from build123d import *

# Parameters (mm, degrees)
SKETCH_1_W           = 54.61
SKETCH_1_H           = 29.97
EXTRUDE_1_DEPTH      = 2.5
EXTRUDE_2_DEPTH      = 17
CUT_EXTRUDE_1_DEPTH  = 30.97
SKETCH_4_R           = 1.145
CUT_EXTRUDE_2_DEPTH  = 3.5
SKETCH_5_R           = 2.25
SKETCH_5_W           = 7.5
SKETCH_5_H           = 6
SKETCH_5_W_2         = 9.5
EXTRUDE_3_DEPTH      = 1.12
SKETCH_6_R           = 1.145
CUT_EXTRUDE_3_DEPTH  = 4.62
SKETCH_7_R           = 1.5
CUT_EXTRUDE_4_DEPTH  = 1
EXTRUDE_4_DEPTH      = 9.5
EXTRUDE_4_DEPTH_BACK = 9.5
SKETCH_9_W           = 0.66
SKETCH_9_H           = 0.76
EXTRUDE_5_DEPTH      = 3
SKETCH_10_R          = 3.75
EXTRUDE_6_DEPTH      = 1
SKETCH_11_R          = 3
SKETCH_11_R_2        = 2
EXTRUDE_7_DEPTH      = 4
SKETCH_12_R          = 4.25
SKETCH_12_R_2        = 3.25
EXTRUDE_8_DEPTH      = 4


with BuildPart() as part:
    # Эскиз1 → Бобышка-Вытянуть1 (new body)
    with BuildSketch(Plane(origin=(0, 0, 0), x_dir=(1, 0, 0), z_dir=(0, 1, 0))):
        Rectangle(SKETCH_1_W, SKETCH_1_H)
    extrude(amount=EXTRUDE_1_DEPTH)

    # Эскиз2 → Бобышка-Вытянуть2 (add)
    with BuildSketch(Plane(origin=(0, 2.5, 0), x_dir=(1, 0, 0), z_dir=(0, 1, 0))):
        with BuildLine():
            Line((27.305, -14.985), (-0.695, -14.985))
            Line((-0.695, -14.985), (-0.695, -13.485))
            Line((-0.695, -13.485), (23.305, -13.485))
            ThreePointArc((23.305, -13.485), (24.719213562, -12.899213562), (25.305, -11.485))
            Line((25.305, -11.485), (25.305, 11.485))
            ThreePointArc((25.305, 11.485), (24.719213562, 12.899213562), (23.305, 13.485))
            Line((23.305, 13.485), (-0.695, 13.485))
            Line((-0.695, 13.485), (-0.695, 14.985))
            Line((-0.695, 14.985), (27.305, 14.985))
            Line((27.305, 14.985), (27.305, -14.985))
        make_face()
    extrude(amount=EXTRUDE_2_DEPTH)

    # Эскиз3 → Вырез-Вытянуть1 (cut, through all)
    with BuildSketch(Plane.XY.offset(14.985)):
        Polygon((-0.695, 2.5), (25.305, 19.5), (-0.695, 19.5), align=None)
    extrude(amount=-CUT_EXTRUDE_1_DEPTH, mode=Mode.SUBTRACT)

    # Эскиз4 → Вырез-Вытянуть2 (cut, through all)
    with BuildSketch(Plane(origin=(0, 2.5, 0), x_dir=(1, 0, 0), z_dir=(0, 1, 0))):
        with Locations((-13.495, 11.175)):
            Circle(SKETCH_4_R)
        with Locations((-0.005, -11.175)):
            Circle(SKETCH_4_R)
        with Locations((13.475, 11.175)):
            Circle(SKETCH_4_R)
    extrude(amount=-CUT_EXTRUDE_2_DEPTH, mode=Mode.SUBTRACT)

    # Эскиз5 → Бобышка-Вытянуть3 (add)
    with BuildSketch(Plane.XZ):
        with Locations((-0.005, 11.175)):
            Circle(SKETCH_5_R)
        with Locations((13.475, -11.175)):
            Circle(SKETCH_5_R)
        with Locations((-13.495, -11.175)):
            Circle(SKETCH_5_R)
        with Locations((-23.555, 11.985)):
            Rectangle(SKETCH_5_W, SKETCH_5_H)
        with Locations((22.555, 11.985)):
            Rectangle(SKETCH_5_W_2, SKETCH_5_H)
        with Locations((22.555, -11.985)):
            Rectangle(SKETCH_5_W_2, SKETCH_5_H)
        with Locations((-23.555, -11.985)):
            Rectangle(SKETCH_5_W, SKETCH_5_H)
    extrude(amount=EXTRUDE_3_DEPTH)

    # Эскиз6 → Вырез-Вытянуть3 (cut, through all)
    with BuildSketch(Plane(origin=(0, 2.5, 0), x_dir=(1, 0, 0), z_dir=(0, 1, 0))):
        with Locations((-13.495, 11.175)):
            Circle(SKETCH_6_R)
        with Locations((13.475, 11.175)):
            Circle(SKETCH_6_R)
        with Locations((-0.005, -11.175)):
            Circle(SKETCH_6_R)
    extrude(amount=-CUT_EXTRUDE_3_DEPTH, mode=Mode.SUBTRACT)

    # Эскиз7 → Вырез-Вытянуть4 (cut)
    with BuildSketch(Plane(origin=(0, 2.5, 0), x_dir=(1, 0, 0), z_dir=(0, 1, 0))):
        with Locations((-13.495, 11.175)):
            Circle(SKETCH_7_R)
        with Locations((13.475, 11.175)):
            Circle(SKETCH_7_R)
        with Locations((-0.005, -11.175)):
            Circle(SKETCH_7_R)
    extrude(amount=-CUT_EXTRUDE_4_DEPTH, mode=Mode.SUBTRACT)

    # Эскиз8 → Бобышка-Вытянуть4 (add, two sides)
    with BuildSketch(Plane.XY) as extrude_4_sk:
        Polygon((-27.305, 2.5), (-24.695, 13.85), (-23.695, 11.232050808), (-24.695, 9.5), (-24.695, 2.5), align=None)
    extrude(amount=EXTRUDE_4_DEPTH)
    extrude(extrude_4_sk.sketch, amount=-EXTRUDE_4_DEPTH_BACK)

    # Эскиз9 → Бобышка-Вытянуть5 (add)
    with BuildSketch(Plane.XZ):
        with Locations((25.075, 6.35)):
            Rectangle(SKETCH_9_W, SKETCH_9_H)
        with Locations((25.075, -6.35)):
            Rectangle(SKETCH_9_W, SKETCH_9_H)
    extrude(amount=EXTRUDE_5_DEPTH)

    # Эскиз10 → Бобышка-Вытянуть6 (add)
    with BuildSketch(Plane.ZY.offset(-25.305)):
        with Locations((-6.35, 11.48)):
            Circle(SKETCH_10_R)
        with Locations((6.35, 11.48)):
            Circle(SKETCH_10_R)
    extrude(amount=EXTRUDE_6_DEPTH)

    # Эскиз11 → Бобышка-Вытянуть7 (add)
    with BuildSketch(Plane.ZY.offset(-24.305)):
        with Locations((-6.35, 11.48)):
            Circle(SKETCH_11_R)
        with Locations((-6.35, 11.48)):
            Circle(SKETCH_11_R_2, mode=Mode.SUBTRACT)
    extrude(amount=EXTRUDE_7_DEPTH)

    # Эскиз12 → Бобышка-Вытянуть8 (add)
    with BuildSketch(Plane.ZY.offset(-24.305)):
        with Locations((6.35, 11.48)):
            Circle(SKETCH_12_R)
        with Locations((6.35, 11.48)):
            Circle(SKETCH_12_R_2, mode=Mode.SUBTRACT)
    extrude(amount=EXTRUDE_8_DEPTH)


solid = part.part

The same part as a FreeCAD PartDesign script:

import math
import FreeCAD as App
import Part
import Sketcher
Q = App.Units.Quantity

doc = App.newDocument("Part")
body = doc.addObject("PartDesign::Body", "Body")

# Sketch on XZ plane
sketch1 = body.newObject("Sketcher::SketchObject", "Sketch")
sketch1.AttachmentSupport = (doc.getObject("XZ_Plane"), [""])
sketch1.MapMode = "FlatFace"
sketch1.addGeometry(Part.LineSegment(App.Vector(-27.305, -14.985, 0), App.Vector(-27.305, 14.985, 0)), False)
sketch1.addGeometry(Part.LineSegment(App.Vector(-27.305, 14.985, 0), App.Vector(27.305, 14.985, 0)), False)
sketch1.addGeometry(Part.LineSegment(App.Vector(27.305, 14.985, 0), App.Vector(27.305, -14.985, 0)), False)
sketch1.addGeometry(Part.LineSegment(App.Vector(27.305, -14.985, 0), App.Vector(-27.305, -14.985, 0)), False)
sketch1.addConstraint(Sketcher.Constraint("Coincident", 0, 2, 1, 1))
sketch1.addConstraint(Sketcher.Constraint("Coincident", 1, 2, 2, 1))
sketch1.addConstraint(Sketcher.Constraint("Coincident", 2, 2, 3, 1))
sketch1.addConstraint(Sketcher.Constraint("Coincident", 3, 2, 0, 1))
sketch1.addConstraint(Sketcher.Constraint("Vertical", 0))
sketch1.addConstraint(Sketcher.Constraint("Horizontal", 1))
sketch1.addConstraint(Sketcher.Constraint("Vertical", 2))
sketch1.addConstraint(Sketcher.Constraint("Horizontal", 3))
sketch1.addConstraint(Sketcher.Constraint("Symmetric", 0, 2, 2, 2, -1, 1))
sketch1.addConstraint(Sketcher.Constraint("DistanceX", 1, 1, 1, 2, Q("54.61 mm")))
sketch1.addConstraint(Sketcher.Constraint("DistanceY", 0, 1, 0, 2, Q("29.97 mm")))
pad1 = body.newObject("PartDesign::Pad", "Pad")
pad1.Profile = sketch1
pad1.Length = 2.5
pad1.Reversed = True

# Sketch on XZ plane
sketch2 = body.newObject("Sketcher::SketchObject", "Sketch001")
sketch2.AttachmentSupport = (doc.getObject("XZ_Plane"), [""])
sketch2.MapMode = "FlatFace"
sketch2.AttachmentOffset = App.Placement(App.Vector(0, 0, -2.5), App.Rotation())
sketch2.addGeometry(Part.LineSegment(App.Vector(-0.695, 14.985, 0), App.Vector(27.305, 14.985, 0)), False)
sketch2.addGeometry(Part.LineSegment(App.Vector(27.305, 14.985, 0), App.Vector(27.305, -14.985, 0)), False)
sketch2.addGeometry(Part.LineSegment(App.Vector(27.305, -14.985, 0), App.Vector(-0.695, -14.985, 0)), False)
sketch2.addGeometry(Part.LineSegment(App.Vector(-0.695, -14.985, 0), App.Vector(-0.695, -13.485, 0)), False)
sketch2.addGeometry(Part.LineSegment(App.Vector(-0.695, -13.485, 0), App.Vector(23.305, -13.485, 0)), False)
sketch2.addGeometry(Part.ArcOfCircle(Part.Circle(App.Vector(23.305, -11.485, 0), App.Vector(0, 0, 1), 2), math.radians(-90), math.radians(0)), False)
sketch2.addGeometry(Part.LineSegment(App.Vector(25.305, -11.485, 0), App.Vector(25.305, 11.485, 0)), False)
sketch2.addGeometry(Part.ArcOfCircle(Part.Circle(App.Vector(23.305, 11.485, 0), App.Vector(0, 0, 1), 2), math.radians(0), math.radians(90)), False)
sketch2.addGeometry(Part.LineSegment(App.Vector(23.305, 13.485, 0), App.Vector(-0.695, 13.485, 0)), False)
sketch2.addGeometry(Part.LineSegment(App.Vector(-0.695, 13.485, 0), App.Vector(-0.695, 14.985, 0)), False)
sketch2.addConstraint(Sketcher.Constraint("Coincident", 0, 2, 1, 1))
sketch2.addConstraint(Sketcher.Constraint("Coincident", 1, 2, 2, 1))
sketch2.addConstraint(Sketcher.Constraint("Coincident", 2, 2, 3, 1))
sketch2.addConstraint(Sketcher.Constraint("Coincident", 3, 2, 4, 1))
sketch2.addConstraint(Sketcher.Constraint("Tangent", 4, 2, 5, 1))
sketch2.addConstraint(Sketcher.Constraint("Tangent", 5, 2, 6, 1))
sketch2.addConstraint(Sketcher.Constraint("Tangent", 6, 2, 7, 1))
sketch2.addConstraint(Sketcher.Constraint("Tangent", 7, 2, 8, 1))
sketch2.addConstraint(Sketcher.Constraint("Coincident", 8, 2, 9, 1))
sketch2.addConstraint(Sketcher.Constraint("Coincident", 9, 2, 0, 1))
sketch2.addConstraint(Sketcher.Constraint("Horizontal", 0))
sketch2.addConstraint(Sketcher.Constraint("Vertical", 1))
sketch2.addConstraint(Sketcher.Constraint("Horizontal", 2))
sketch2.addConstraint(Sketcher.Constraint("Vertical", 3))
sketch2.addConstraint(Sketcher.Constraint("Horizontal", 4))
sketch2.addConstraint(Sketcher.Constraint("Vertical", 6))
sketch2.addConstraint(Sketcher.Constraint("Horizontal", 8))
sketch2.addConstraint(Sketcher.Constraint("Vertical", 9))
sketch2.addConstraint(Sketcher.Constraint("Equal", 5, 7))
sketch2.addConstraint(Sketcher.Constraint("Symmetric", 3, 2, 8, 2, -1))
sketch2.addConstraint(Sketcher.Constraint("Equal", 3, 9))
sketch2.addConstraint(Sketcher.Constraint("Radius", 5, Q("2 mm")))
sketch2.addConstraint(Sketcher.Constraint("DistanceX", 0, 1, 0, 2, Q("28 mm")))
sketch2.addConstraint(Sketcher.Constraint("DistanceX", 4, 1, 4, 2, Q("24 mm")))
sketch2.addConstraint(Sketcher.Constraint("DistanceY", 3, 1, 3, 2, Q("1.5 mm")))
sketch2.addConstraint(Sketcher.Constraint("DistanceY", 1, 2, 1, 1, Q("29.97 mm")))
sketch2.addConstraint(Sketcher.Constraint("DistanceX", -1, 1, 5, 3, Q("23.305 mm")))
pad2 = body.newObject("PartDesign::Pad", "Pad001")
pad2.Profile = sketch2
pad2.Length = 17
pad2.Reversed = True

# Sketch on XY plane
sketch3 = body.newObject("Sketcher::SketchObject", "Sketch002")
sketch3.AttachmentSupport = (doc.getObject("XY_Plane"), [""])
sketch3.MapMode = "FlatFace"
sketch3.AttachmentOffset = App.Placement(App.Vector(0, 0, 14.985), App.Rotation())
sketch3.addGeometry(Part.LineSegment(App.Vector(-0.695, 2.5, 0), App.Vector(25.305, 19.5, 0)), False)
sketch3.addGeometry(Part.LineSegment(App.Vector(25.305, 19.5, 0), App.Vector(-0.695, 19.5, 0)), False)
sketch3.addGeometry(Part.LineSegment(App.Vector(-0.695, 19.5, 0), App.Vector(-0.695, 2.5, 0)), False)
sketch3.addConstraint(Sketcher.Constraint("Coincident", 0, 2, 1, 1))
sketch3.addConstraint(Sketcher.Constraint("Coincident", 1, 2, 2, 1))
sketch3.addConstraint(Sketcher.Constraint("Coincident", 2, 2, 0, 1))
sketch3.addConstraint(Sketcher.Constraint("Horizontal", 1))
sketch3.addConstraint(Sketcher.Constraint("Vertical", 2))
sketch3.addConstraint(Sketcher.Constraint("DistanceX", 1, 2, 1, 1, Q("26 mm")))
sketch3.addConstraint(Sketcher.Constraint("DistanceY", 2, 2, 2, 1, Q("17 mm")))
sketch3.addConstraint(Sketcher.Constraint("DistanceY", -1, 1, 0, 2, Q("19.5 mm")))
sketch3.addConstraint(Sketcher.Constraint("DistanceX", -1, 1, 0, 2, Q("25.305 mm")))
pocket1 = body.newObject("PartDesign::Pocket", "Pocket")
pocket1.Profile = sketch3
pocket1.Type = "ThroughAll"

# Sketch on XZ plane
sketch4 = body.newObject("Sketcher::SketchObject", "Sketch003")
sketch4.AttachmentSupport = (doc.getObject("XZ_Plane"), [""])
sketch4.MapMode = "FlatFace"
sketch4.AttachmentOffset = App.Placement(App.Vector(0, 0, -2.5), App.Rotation())
sketch4.addGeometry(Part.Circle(App.Vector(-13.495, -11.175, 0), App.Vector(0, 0, 1), 1.145), False)
sketch4.addGeometry(Part.Circle(App.Vector(-0.005, 11.175, 0), App.Vector(0, 0, 1), 1.145), False)
sketch4.addGeometry(Part.Circle(App.Vector(13.475, -11.175, 0), App.Vector(0, 0, 1), 1.145), False)
sketch4.addConstraint(Sketcher.Constraint("Equal", 0, 1))
sketch4.addConstraint(Sketcher.Constraint("Equal", 1, 2))
sketch4.addConstraint(Sketcher.Constraint("Horizontal", 0, 3, 2, 3))
sketch4.addConstraint(Sketcher.Constraint("Diameter", 0, Q("2.29 mm")))
sketch4.addConstraint(Sketcher.Constraint("DistanceX", 0, 3, 1, 3, Q("13.49 mm")))
sketch4.addConstraint(Sketcher.Constraint("DistanceY", 0, 3, 1, 3, Q("22.35 mm")))
sketch4.addConstraint(Sketcher.Constraint("DistanceX", 1, 3, 2, 3, Q("13.48 mm")))
sketch4.addConstraint(Sketcher.Constraint("DistanceX", 0, 3, -1, 1, Q("13.495 mm")))
sketch4.addConstraint(Sketcher.Constraint("DistanceY", 0, 3, -1, 1, Q("11.175 mm")))
pocket2 = body.newObject("PartDesign::Pocket", "Pocket001")
pocket2.Profile = sketch4
pocket2.Type = "ThroughAll"
pocket2.Reversed = True

# Sketch on XZ plane
sketch5 = body.newObject("Sketcher::SketchObject", "Sketch004")
sketch5.AttachmentSupport = (doc.getObject("XZ_Plane"), [""])
sketch5.MapMode = "FlatFace"
sketch5.addGeometry(Part.Circle(App.Vector(-0.005, 11.175, 0), App.Vector(0, 0, 1), 2.25), False)
sketch5.addGeometry(Part.Circle(App.Vector(13.475, -11.175, 0), App.Vector(0, 0, 1), 2.25), False)
sketch5.addGeometry(Part.Circle(App.Vector(-13.495, -11.175, 0), App.Vector(0, 0, 1), 2.25), False)
sketch5.addGeometry(Part.LineSegment(App.Vector(-27.305, 14.985, 0), App.Vector(-27.305, 8.985, 0)), False)
sketch5.addGeometry(Part.LineSegment(App.Vector(-27.305, 8.985, 0), App.Vector(-19.805, 8.985, 0)), False)
sketch5.addGeometry(Part.LineSegment(App.Vector(-19.805, 8.985, 0), App.Vector(-19.805, 14.985, 0)), False)
sketch5.addGeometry(Part.LineSegment(App.Vector(-19.805, 14.985, 0), App.Vector(-27.305, 14.985, 0)), False)
sketch5.addGeometry(Part.LineSegment(App.Vector(17.805, 14.985, 0), App.Vector(17.805, 8.985, 0)), False)
sketch5.addGeometry(Part.LineSegment(App.Vector(17.805, 8.985, 0), App.Vector(27.305, 8.985, 0)), False)
sketch5.addGeometry(Part.LineSegment(App.Vector(27.305, 8.985, 0), App.Vector(27.305, 14.985, 0)), False)
sketch5.addGeometry(Part.LineSegment(App.Vector(27.305, 14.985, 0), App.Vector(17.805, 14.985, 0)), False)
sketch5.addGeometry(Part.LineSegment(App.Vector(17.805, -8.985, 0), App.Vector(17.805, -14.985, 0)), False)
sketch5.addGeometry(Part.LineSegment(App.Vector(17.805, -14.985, 0), App.Vector(27.305, -14.985, 0)), False)
sketch5.addGeometry(Part.LineSegment(App.Vector(27.305, -14.985, 0), App.Vector(27.305, -8.985, 0)), False)
sketch5.addGeometry(Part.LineSegment(App.Vector(27.305, -8.985, 0), App.Vector(17.805, -8.985, 0)), False)
sketch5.addGeometry(Part.LineSegment(App.Vector(-27.305, -8.985, 0), App.Vector(-27.305, -14.985, 0)), False)
sketch5.addGeometry(Part.LineSegment(App.Vector(-27.305, -14.985, 0), App.Vector(-19.805, -14.985, 0)), False)
sketch5.addGeometry(Part.LineSegment(App.Vector(-19.805, -14.985, 0), App.Vector(-19.805, -8.985, 0)), False)
sketch5.addGeometry(Part.LineSegment(App.Vector(-19.805, -8.985, 0), App.Vector(-27.305, -8.985, 0)), False)
sketch5.addConstraint(Sketcher.Constraint("Coincident", 3, 2, 4, 1))
sketch5.addConstraint(Sketcher.Constraint("Coincident", 4, 2, 5, 1))
sketch5.addConstraint(Sketcher.Constraint("Coincident", 5, 2, 6, 1))
sketch5.addConstraint(Sketcher.Constraint("Coincident", 6, 2, 3, 1))
sketch5.addConstraint(Sketcher.Constraint("Coincident", 7, 2, 8, 1))
sketch5.addConstraint(Sketcher.Constraint("Coincident", 8, 2, 9, 1))
sketch5.addConstraint(Sketcher.Constraint("Coincident", 9, 2, 10, 1))
sketch5.addConstraint(Sketcher.Constraint("Coincident", 10, 2, 7, 1))
sketch5.addConstraint(Sketcher.Constraint("Coincident", 11, 2, 12, 1))
sketch5.addConstraint(Sketcher.Constraint("Coincident", 12, 2, 13, 1))
sketch5.addConstraint(Sketcher.Constraint("Coincident", 13, 2, 14, 1))
sketch5.addConstraint(Sketcher.Constraint("Coincident", 14, 2, 11, 1))
sketch5.addConstraint(Sketcher.Constraint("Coincident", 15, 2, 16, 1))
sketch5.addConstraint(Sketcher.Constraint("Coincident", 16, 2, 17, 1))
sketch5.addConstraint(Sketcher.Constraint("Coincident", 17, 2, 18, 1))
sketch5.addConstraint(Sketcher.Constraint("Coincident", 18, 2, 15, 1))
sketch5.addConstraint(Sketcher.Constraint("Vertical", 3))
sketch5.addConstraint(Sketcher.Constraint("Horizontal", 4))
sketch5.addConstraint(Sketcher.Constraint("Vertical", 5))
sketch5.addConstraint(Sketcher.Constraint("Horizontal", 6))
sketch5.addConstraint(Sketcher.Constraint("Vertical", 7))
sketch5.addConstraint(Sketcher.Constraint("Horizontal", 8))
sketch5.addConstraint(Sketcher.Constraint("Vertical", 9))
sketch5.addConstraint(Sketcher.Constraint("Horizontal", 10))
sketch5.addConstraint(Sketcher.Constraint("Vertical", 11))
sketch5.addConstraint(Sketcher.Constraint("Horizontal", 12))
sketch5.addConstraint(Sketcher.Constraint("Vertical", 13))
sketch5.addConstraint(Sketcher.Constraint("Horizontal", 14))
sketch5.addConstraint(Sketcher.Constraint("Vertical", 15))
sketch5.addConstraint(Sketcher.Constraint("Horizontal", 16))
sketch5.addConstraint(Sketcher.Constraint("Vertical", 17))
sketch5.addConstraint(Sketcher.Constraint("Horizontal", 18))
sketch5.addConstraint(Sketcher.Constraint("Equal", 0, 1))
sketch5.addConstraint(Sketcher.Constraint("Equal", 1, 2))
sketch5.addConstraint(Sketcher.Constraint("Symmetric", 6, 2, 12, 2, -1, 1))
sketch5.addConstraint(Sketcher.Constraint("Symmetric", 9, 2, 15, 2, -1, 1))
sketch5.addConstraint(Sketcher.Constraint("Symmetric", 3, 2, 8, 2, -2))
sketch5.addConstraint(Sketcher.Constraint("Symmetric", 10, 2, 11, 2, -1))
sketch5.addConstraint(Sketcher.Constraint("Symmetric", 4, 2, 17, 2, -1))
sketch5.addConstraint(Sketcher.Constraint("Horizontal", 1, 3, 2, 3))
sketch5.addConstraint(Sketcher.Constraint("Horizontal", 14, 2, 17, 2))
sketch5.addConstraint(Sketcher.Constraint("Diameter", 0, Q("4.5 mm")))
sketch5.addConstraint(Sketcher.Constraint("DistanceY", 3, 2, 3, 1, Q("6 mm")))
sketch5.addConstraint(Sketcher.Constraint("DistanceX", 4, 1, 4, 2, Q("7.5 mm")))
sketch5.addConstraint(Sketcher.Constraint("DistanceX", 8, 1, 8, 2, Q("9.5 mm")))
sketch5.addConstraint(Sketcher.Constraint("DistanceX", 3, 2, 0, 3, Q("27.3 mm")))
sketch5.addConstraint(Sketcher.Constraint("DistanceX", 2, 3, 7, 2, Q("31.3 mm")))
sketch5.addConstraint(Sketcher.Constraint("DistanceX", 0, 3, 1, 3, Q("13.48 mm")))
sketch5.addConstraint(Sketcher.Constraint("DistanceY", 1, 3, 0, 3, Q("22.35 mm")))
sketch5.addConstraint(Sketcher.Constraint("DistanceX", 2, 3, 0, 3, Q("13.49 mm")))
sketch5.addConstraint(Sketcher.Constraint("DistanceY", 2, 3, 3, 2, Q("20.16 mm")))
sketch5.addConstraint(Sketcher.Constraint("DistanceY", 11, 2, 1, 3, Q("3.81 mm")))
pad3 = body.newObject("PartDesign::Pad", "Pad002")
pad3.Profile = sketch5
pad3.Length = 1.12

# Sketch on XZ plane
sketch6 = body.newObject("Sketcher::SketchObject", "Sketch005")
sketch6.AttachmentSupport = (doc.getObject("XZ_Plane"), [""])
sketch6.MapMode = "FlatFace"
sketch6.AttachmentOffset = App.Placement(App.Vector(0, 0, -2.5), App.Rotation())
sketch6.addGeometry(Part.Circle(App.Vector(-13.495, -11.175, 0), App.Vector(0, 0, 1), 1.145), False)
sketch6.addGeometry(Part.Circle(App.Vector(13.475, -11.175, 0), App.Vector(0, 0, 1), 1.145), False)
sketch6.addGeometry(Part.Circle(App.Vector(-0.005, 11.175, 0), App.Vector(0, 0, 1), 1.145), False)
sketch6.addConstraint(Sketcher.Constraint("Equal", 0, 1))
sketch6.addConstraint(Sketcher.Constraint("Equal", 1, 2))
sketch6.addConstraint(Sketcher.Constraint("Horizontal", 0, 3, 1, 3))
sketch6.addConstraint(Sketcher.Constraint("Diameter", 0, Q("2.29 mm")))
sketch6.addConstraint(Sketcher.Constraint("DistanceX", 0, 3, 1, 3, Q("26.97 mm")))
sketch6.addConstraint(Sketcher.Constraint("DistanceX", 2, 3, 1, 3, Q("13.48 mm")))
sketch6.addConstraint(Sketcher.Constraint("DistanceY", 1, 3, 2, 3, Q("22.35 mm")))
sketch6.addConstraint(Sketcher.Constraint("DistanceX", 0, 3, -1, 1, Q("13.495 mm")))
sketch6.addConstraint(Sketcher.Constraint("DistanceY", 0, 3, -1, 1, Q("11.175 mm")))
pocket3 = body.newObject("PartDesign::Pocket", "Pocket002")
pocket3.Profile = sketch6
pocket3.Type = "ThroughAll"
pocket3.Reversed = True

# Sketch on XZ plane
sketch7 = body.newObject("Sketcher::SketchObject", "Sketch006")
sketch7.AttachmentSupport = (doc.getObject("XZ_Plane"), [""])
sketch7.MapMode = "FlatFace"
sketch7.AttachmentOffset = App.Placement(App.Vector(0, 0, -2.5), App.Rotation())
sketch7.addGeometry(Part.Circle(App.Vector(-13.495, -11.175, 0), App.Vector(0, 0, 1), 1.5), False)
sketch7.addGeometry(Part.Circle(App.Vector(13.475, -11.175, 0), App.Vector(0, 0, 1), 1.5), False)
sketch7.addGeometry(Part.Circle(App.Vector(-0.005, 11.175, 0), App.Vector(0, 0, 1), 1.5), False)
sketch7.addConstraint(Sketcher.Constraint("Equal", 0, 1))
sketch7.addConstraint(Sketcher.Constraint("Equal", 1, 2))
sketch7.addConstraint(Sketcher.Constraint("Horizontal", 0, 3, 1, 3))
sketch7.addConstraint(Sketcher.Constraint("Diameter", 0, Q("3 mm")))
sketch7.addConstraint(Sketcher.Constraint("DistanceX", 0, 3, 1, 3, Q("26.97 mm")))
sketch7.addConstraint(Sketcher.Constraint("DistanceX", 2, 3, 1, 3, Q("13.48 mm")))
sketch7.addConstraint(Sketcher.Constraint("DistanceY", 1, 3, 2, 3, Q("22.35 mm")))
sketch7.addConstraint(Sketcher.Constraint("DistanceX", 0, 3, -1, 1, Q("13.495 mm")))
sketch7.addConstraint(Sketcher.Constraint("DistanceY", 0, 3, -1, 1, Q("11.175 mm")))
pocket4 = body.newObject("PartDesign::Pocket", "Pocket003")
pocket4.Profile = sketch7
pocket4.Length = 1
pocket4.Reversed = True

# Sketch on XY plane
sketch8 = body.newObject("Sketcher::SketchObject", "Sketch007")
sketch8.AttachmentSupport = (doc.getObject("XY_Plane"), [""])
sketch8.MapMode = "FlatFace"
sketch8.addGeometry(Part.LineSegment(App.Vector(-24.695, 13.85, 0), App.Vector(-27.305, 2.5, 0)), False)
sketch8.addGeometry(Part.LineSegment(App.Vector(-27.305, 2.5, 0), App.Vector(-24.695, 2.5, 0)), False)
sketch8.addGeometry(Part.LineSegment(App.Vector(-24.695, 2.5, 0), App.Vector(-24.695, 9.5, 0)), False)
sketch8.addGeometry(Part.LineSegment(App.Vector(-24.695, 9.5, 0), App.Vector(-23.695, 11.232051, 0)), False)
sketch8.addGeometry(Part.LineSegment(App.Vector(-23.695, 11.232051, 0), App.Vector(-24.695, 13.85, 0)), False)
sketch8.addConstraint(Sketcher.Constraint("Coincident", 0, 2, 1, 1))
sketch8.addConstraint(Sketcher.Constraint("Coincident", 1, 2, 2, 1))
sketch8.addConstraint(Sketcher.Constraint("Coincident", 2, 2, 3, 1))
sketch8.addConstraint(Sketcher.Constraint("Coincident", 3, 2, 4, 1))
sketch8.addConstraint(Sketcher.Constraint("Coincident", 4, 2, 0, 1))
sketch8.addConstraint(Sketcher.Constraint("Horizontal", 1))
sketch8.addConstraint(Sketcher.Constraint("Vertical", 2))
sketch8.addConstraint(Sketcher.Constraint("Vertical", 2, 2, 4, 2))
sketch8.addConstraint(Sketcher.Constraint("DistanceY", 2, 1, 2, 2, Q("7 mm")))
sketch8.addConstraint(Sketcher.Constraint("Angle", 3, Q("60 deg")))
sketch8.addConstraint(Sketcher.Constraint("Distance", 3, Q("2 mm")))
sketch8.addConstraint(Sketcher.Constraint("DistanceX", 1, 1, 1, 2, Q("2.61 mm")))
sketch8.addConstraint(Sketcher.Constraint("DistanceY", -1, 1, 0, 2, Q("2.5 mm")))
sketch8.addConstraint(Sketcher.Constraint("DistanceY", -1, 1, 4, 2, Q("13.85 mm")))
sketch8.addConstraint(Sketcher.Constraint("DistanceX", 0, 2, -1, 1, Q("27.305 mm")))
pad4 = body.newObject("PartDesign::Pad", "Pad003")
pad4.Profile = sketch8
pad4.Type = "TwoLengths"
pad4.Length = 9.5
pad4.Length2 = 9.5

# Sketch on XZ plane
sketch9 = body.newObject("Sketcher::SketchObject", "Sketch008")
sketch9.AttachmentSupport = (doc.getObject("XZ_Plane"), [""])
sketch9.MapMode = "FlatFace"
sketch9.addGeometry(Part.LineSegment(App.Vector(24.745, 6.73, 0), App.Vector(24.745, 5.97, 0)), False)
sketch9.addGeometry(Part.LineSegment(App.Vector(24.745, 5.97, 0), App.Vector(25.405, 5.97, 0)), False)
sketch9.addGeometry(Part.LineSegment(App.Vector(25.405, 5.97, 0), App.Vector(25.405, 6.73, 0)), False)
sketch9.addGeometry(Part.LineSegment(App.Vector(25.405, 6.73, 0), App.Vector(24.745, 6.73, 0)), False)
sketch9.addGeometry(Part.LineSegment(App.Vector(24.745, -5.97, 0), App.Vector(24.745, -6.73, 0)), False)
sketch9.addGeometry(Part.LineSegment(App.Vector(24.745, -6.73, 0), App.Vector(25.405, -6.73, 0)), False)
sketch9.addGeometry(Part.LineSegment(App.Vector(25.405, -6.73, 0), App.Vector(25.405, -5.97, 0)), False)
sketch9.addGeometry(Part.LineSegment(App.Vector(25.405, -5.97, 0), App.Vector(24.745, -5.97, 0)), False)
sketch9.addConstraint(Sketcher.Constraint("Coincident", 0, 2, 1, 1))
sketch9.addConstraint(Sketcher.Constraint("Coincident", 1, 2, 2, 1))
sketch9.addConstraint(Sketcher.Constraint("Coincident", 2, 2, 3, 1))
sketch9.addConstraint(Sketcher.Constraint("Coincident", 3, 2, 0, 1))
sketch9.addConstraint(Sketcher.Constraint("Coincident", 4, 2, 5, 1))
sketch9.addConstraint(Sketcher.Constraint("Coincident", 5, 2, 6, 1))
sketch9.addConstraint(Sketcher.Constraint("Coincident", 6, 2, 7, 1))
sketch9.addConstraint(Sketcher.Constraint("Coincident", 7, 2, 4, 1))
sketch9.addConstraint(Sketcher.Constraint("Vertical", 0))
sketch9.addConstraint(Sketcher.Constraint("Horizontal", 1))
sketch9.addConstraint(Sketcher.Constraint("Vertical", 2))
sketch9.addConstraint(Sketcher.Constraint("Horizontal", 3))
sketch9.addConstraint(Sketcher.Constraint("Vertical", 4))
sketch9.addConstraint(Sketcher.Constraint("Horizontal", 5))
sketch9.addConstraint(Sketcher.Constraint("Vertical", 6))
sketch9.addConstraint(Sketcher.Constraint("Horizontal", 7))
sketch9.addConstraint(Sketcher.Constraint("Symmetric", 3, 2, 4, 2, -1))
sketch9.addConstraint(Sketcher.Constraint("Symmetric", 1, 2, 6, 2, -1))
sketch9.addConstraint(Sketcher.Constraint("DistanceX", 1, 1, 1, 2, Q("0.66 mm")))
sketch9.addConstraint(Sketcher.Constraint("DistanceY", 0, 2, 0, 1, Q("0.76 mm")))
sketch9.addConstraint(Sketcher.Constraint("DistanceY", 4, 2, 0, 2, Q("12.7 mm")))
sketch9.addConstraint(Sketcher.Constraint("DistanceX", -1, 1, 0, 2, Q("24.745 mm")))
pad5 = body.newObject("PartDesign::Pad", "Pad004")
pad5.Profile = sketch9
pad5.Length = 3

# Sketch on YZ plane
sketch10 = body.newObject("Sketcher::SketchObject", "Sketch009")
sketch10.AttachmentSupport = (doc.getObject("YZ_Plane"), [""])
sketch10.MapMode = "FlatFace"
sketch10.AttachmentOffset = App.Placement(App.Vector(0, 0, 25.305), App.Rotation())
sketch10.addGeometry(Part.Circle(App.Vector(11.48, -6.35, 0), App.Vector(0, 0, 1), 3.75), False)
sketch10.addGeometry(Part.Circle(App.Vector(11.48, 6.35, 0), App.Vector(0, 0, 1), 3.75), False)
sketch10.addConstraint(Sketcher.Constraint("Equal", 0, 1))
sketch10.addConstraint(Sketcher.Constraint("Symmetric", 0, 3, 1, 3, -1))
sketch10.addConstraint(Sketcher.Constraint("Diameter", 0, Q("7.5 mm")))
sketch10.addConstraint(Sketcher.Constraint("DistanceY", 0, 3, 1, 3, Q("12.7 mm")))
sketch10.addConstraint(Sketcher.Constraint("DistanceX", -1, 1, 0, 3, Q("11.48 mm")))
pad6 = body.newObject("PartDesign::Pad", "Pad005")
pad6.Profile = sketch10
pad6.Length = 1
pad6.Reversed = True

# Sketch on YZ plane
sketch11 = body.newObject("Sketcher::SketchObject", "Sketch010")
sketch11.AttachmentSupport = (doc.getObject("YZ_Plane"), [""])
sketch11.MapMode = "FlatFace"
sketch11.AttachmentOffset = App.Placement(App.Vector(0, 0, 24.305), App.Rotation())
sketch11.addGeometry(Part.Circle(App.Vector(11.48, -6.35, 0), App.Vector(0, 0, 1), 3), False)
sketch11.addGeometry(Part.Circle(App.Vector(11.48, -6.35, 0), App.Vector(0, 0, 1), 2), False)
sketch11.addConstraint(Sketcher.Constraint("Coincident", 1, 3, 0, 3))
sketch11.addConstraint(Sketcher.Constraint("Diameter", 0, Q("6 mm")))
sketch11.addConstraint(Sketcher.Constraint("Diameter", 1, Q("4 mm")))
sketch11.addConstraint(Sketcher.Constraint("DistanceX", -1, 1, 0, 3, Q("11.48 mm")))
sketch11.addConstraint(Sketcher.Constraint("DistanceY", 0, 3, -1, 1, Q("6.35 mm")))
pad7 = body.newObject("PartDesign::Pad", "Pad006")
pad7.Profile = sketch11
pad7.Length = 4
pad7.Reversed = True

# Sketch on YZ plane
sketch12 = body.newObject("Sketcher::SketchObject", "Sketch011")
sketch12.AttachmentSupport = (doc.getObject("YZ_Plane"), [""])
sketch12.MapMode = "FlatFace"
sketch12.AttachmentOffset = App.Placement(App.Vector(0, 0, 24.305), App.Rotation())
sketch12.addGeometry(Part.Circle(App.Vector(11.48, 6.35, 0), App.Vector(0, 0, 1), 4.25), False)
sketch12.addGeometry(Part.Circle(App.Vector(11.48, 6.35, 0), App.Vector(0, 0, 1), 3.25), False)
sketch12.addConstraint(Sketcher.Constraint("Coincident", 1, 3, 0, 3))
sketch12.addConstraint(Sketcher.Constraint("Diameter", 0, Q("8.5 mm")))
sketch12.addConstraint(Sketcher.Constraint("Diameter", 1, Q("6.5 mm")))
sketch12.addConstraint(Sketcher.Constraint("DistanceX", -1, 1, 0, 3, Q("11.48 mm")))
sketch12.addConstraint(Sketcher.Constraint("DistanceY", -1, 1, 0, 3, Q("6.35 mm")))
pad8 = body.newObject("PartDesign::Pad", "Pad007")
pad8.Profile = sketch12
pad8.Length = 4
pad8.Reversed = True

doc.recompute()
